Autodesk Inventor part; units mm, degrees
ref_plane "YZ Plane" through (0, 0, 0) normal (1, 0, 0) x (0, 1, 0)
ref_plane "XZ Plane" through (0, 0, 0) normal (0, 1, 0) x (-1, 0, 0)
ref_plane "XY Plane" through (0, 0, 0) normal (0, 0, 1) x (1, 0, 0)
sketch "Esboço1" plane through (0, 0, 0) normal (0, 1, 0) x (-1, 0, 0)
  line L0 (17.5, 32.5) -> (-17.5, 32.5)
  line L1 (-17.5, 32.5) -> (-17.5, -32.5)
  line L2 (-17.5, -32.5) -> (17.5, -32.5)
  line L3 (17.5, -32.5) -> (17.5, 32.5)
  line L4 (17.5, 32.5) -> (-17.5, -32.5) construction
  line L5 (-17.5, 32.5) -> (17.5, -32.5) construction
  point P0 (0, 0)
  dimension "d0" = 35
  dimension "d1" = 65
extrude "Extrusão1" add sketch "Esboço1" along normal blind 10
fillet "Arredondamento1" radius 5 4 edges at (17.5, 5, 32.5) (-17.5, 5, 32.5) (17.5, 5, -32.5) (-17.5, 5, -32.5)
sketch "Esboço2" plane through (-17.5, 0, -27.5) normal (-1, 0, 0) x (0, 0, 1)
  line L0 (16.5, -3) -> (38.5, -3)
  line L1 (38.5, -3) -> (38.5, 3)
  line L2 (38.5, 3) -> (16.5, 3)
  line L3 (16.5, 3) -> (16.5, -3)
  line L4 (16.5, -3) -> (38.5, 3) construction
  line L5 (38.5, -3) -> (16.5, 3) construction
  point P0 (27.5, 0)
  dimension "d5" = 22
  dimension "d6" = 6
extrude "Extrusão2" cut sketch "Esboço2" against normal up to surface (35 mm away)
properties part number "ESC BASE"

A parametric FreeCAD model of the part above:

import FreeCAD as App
import Part
import Sketcher

V = App.Vector
Q = App.Units.Quantity


def edges_at(feature, points):
    """Names of the edges that pass closest to the given points."""
    edges = feature.Shape.Edges
    near = lambda p: min(range(len(edges)), key=lambda i: edges[i].distToShape(Part.Vertex(*p))[0])
    return sorted({f"Edge{near(p) + 1}" for p in points})

doc = App.newDocument("Part")
body = doc.addObject("PartDesign::Body", "Body")

sketch1 = body.newObject("Sketcher::SketchObject", "Sketch")
sketch1.AttachmentSupport = (doc.getObject("XZ_Plane"), [""])
sketch1.MapMode = "FlatFace"
sketch1.addGeometry([
    Part.LineSegment(V(-17.5, -32.5, 0), V(-17.5, 32.5, 0)),
    Part.LineSegment(V(-17.5, 32.5, 0), V(17.5, 32.5, 0)),
    Part.LineSegment(V(17.5, 32.5, 0), V(17.5, -32.5, 0)),
    Part.LineSegment(V(17.5, -32.5, 0), V(-17.5, -32.5, 0)),
], False)
sketch1.addConstraint([
    Sketcher.Constraint("Coincident", 0, 2, 1, 1),
    Sketcher.Constraint("Coincident", 1, 2, 2, 1),
    Sketcher.Constraint("Coincident", 2, 2, 3, 1),
    Sketcher.Constraint("Coincident", 3, 2, 0, 1),
    Sketcher.Constraint("Vertical", 0),
    Sketcher.Constraint("Horizontal", 1),
    Sketcher.Constraint("Vertical", 2),
    Sketcher.Constraint("Horizontal", 3),
    Sketcher.Constraint("Symmetric", 0, 2, 2, 2, -1, 1),
    Sketcher.Constraint("DistanceX", 1, 1, 1, 2, Q("35 mm")),
    Sketcher.Constraint("DistanceY", 0, 1, 0, 2, Q("65 mm")),
])
pad1 = body.newObject("PartDesign::Pad", "Pad")
pad1.Profile = sketch1
pad1.Length = 10
pad1.Reversed = True
doc.recompute()

fillet = body.newObject("PartDesign::Fillet", "Fillet")
fillet.Base = (pad1, edges_at(pad1, [
    (17.5, 5, 32.5),
    (-17.5, 5, 32.5),
    (17.5, 5, -32.5),
    (-17.5, 5, -32.5),
]))
fillet.Radius = 5

sketch2 = body.newObject("Sketcher::SketchObject", "Sketch001")
sketch2.AttachmentSupport = (doc.getObject("YZ_Plane"), [""])
sketch2.MapMode = "FlatFace"
sketch2.AttachmentOffset = App.Placement(V(0, 0, -17.5), App.Rotation())
sketch2.addGeometry([
    Part.LineSegment(V(3, -11, 0), V(-3, -11, 0)),
    Part.LineSegment(V(-3, -11, 0), V(-3, 11, 0)),
    Part.LineSegment(V(-3, 11, 0), V(3, 11, 0)),
    Part.LineSegment(V(3, 11, 0), V(3, -11, 0)),
], False)
sketch2.addConstraint([
    Sketcher.Constraint("Coincident", 0, 2, 1, 1),
    Sketcher.Constraint("Coincident", 1, 2, 2, 1),
    Sketcher.Constraint("Coincident", 2, 2, 3, 1),
    Sketcher.Constraint("Coincident", 3, 2, 0, 1),
    Sketcher.Constraint("Horizontal", 0),
    Sketcher.Constraint("Vertical", 1),
    Sketcher.Constraint("Horizontal", 2),
    Sketcher.Constraint("Vertical", 3),
    Sketcher.Constraint("Symmetric", 0, 2, 2, 2, -1, 1),
    Sketcher.Constraint("DistanceX", 0, 2, 0, 1, Q("6 mm")),
    Sketcher.Constraint("DistanceY", 1, 1, 1, 2, Q("22 mm")),
])
pocket1 = body.newObject("PartDesign::Pocket", "Pocket")
pocket1.Profile = sketch2
pocket1.Length = 35
pocket1.Reversed = True

doc.recompute()
